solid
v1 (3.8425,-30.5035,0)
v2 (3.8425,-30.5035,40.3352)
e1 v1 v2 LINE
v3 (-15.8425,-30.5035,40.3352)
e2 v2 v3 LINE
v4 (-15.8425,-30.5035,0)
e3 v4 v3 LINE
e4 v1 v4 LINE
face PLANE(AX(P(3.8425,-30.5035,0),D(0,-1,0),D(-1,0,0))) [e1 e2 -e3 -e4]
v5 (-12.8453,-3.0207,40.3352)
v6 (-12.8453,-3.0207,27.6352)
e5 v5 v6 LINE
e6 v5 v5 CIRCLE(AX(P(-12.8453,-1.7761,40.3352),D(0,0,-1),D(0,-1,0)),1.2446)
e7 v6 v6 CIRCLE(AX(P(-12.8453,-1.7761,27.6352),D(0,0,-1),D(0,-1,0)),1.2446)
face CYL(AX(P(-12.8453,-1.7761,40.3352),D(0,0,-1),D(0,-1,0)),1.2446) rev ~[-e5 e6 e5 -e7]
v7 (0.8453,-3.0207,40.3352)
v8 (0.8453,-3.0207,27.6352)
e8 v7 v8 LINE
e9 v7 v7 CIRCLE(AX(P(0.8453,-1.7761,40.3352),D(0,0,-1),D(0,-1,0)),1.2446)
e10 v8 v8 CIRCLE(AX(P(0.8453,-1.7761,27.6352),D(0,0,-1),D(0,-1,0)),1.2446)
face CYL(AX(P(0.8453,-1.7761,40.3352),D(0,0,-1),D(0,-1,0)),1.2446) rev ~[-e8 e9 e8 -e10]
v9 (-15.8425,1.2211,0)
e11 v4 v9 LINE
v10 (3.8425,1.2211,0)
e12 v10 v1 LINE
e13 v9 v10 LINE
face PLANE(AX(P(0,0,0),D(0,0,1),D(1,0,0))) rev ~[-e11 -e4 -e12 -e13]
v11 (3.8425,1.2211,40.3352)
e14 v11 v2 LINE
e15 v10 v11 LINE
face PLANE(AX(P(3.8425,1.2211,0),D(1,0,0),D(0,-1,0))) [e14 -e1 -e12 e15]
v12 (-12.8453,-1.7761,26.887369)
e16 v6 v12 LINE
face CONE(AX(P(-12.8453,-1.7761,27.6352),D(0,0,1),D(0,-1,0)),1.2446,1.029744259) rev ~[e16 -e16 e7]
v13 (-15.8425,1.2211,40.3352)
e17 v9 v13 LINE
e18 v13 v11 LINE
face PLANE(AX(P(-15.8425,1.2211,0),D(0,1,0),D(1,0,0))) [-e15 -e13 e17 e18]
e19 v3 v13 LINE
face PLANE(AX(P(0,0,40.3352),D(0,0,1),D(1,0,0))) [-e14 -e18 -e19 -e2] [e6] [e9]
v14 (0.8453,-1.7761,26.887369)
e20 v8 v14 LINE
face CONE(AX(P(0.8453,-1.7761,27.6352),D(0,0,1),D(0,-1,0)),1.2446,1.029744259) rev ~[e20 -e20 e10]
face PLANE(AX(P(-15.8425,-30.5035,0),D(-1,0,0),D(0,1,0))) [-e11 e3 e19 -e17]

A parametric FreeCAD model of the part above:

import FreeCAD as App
import Part
import Sketcher
from FreeCAD import Vector
Q = App.Units.Quantity

doc = App.newDocument("Part")
body = doc.addObject("PartDesign::Body", "Body")

sketch1 = body.newObject("Sketcher::SketchObject", "Sketch")
sketch1.AttachmentSupport = (doc.getObject("XY_Plane"), [""])
sketch1.MapMode = "FlatFace"
sketch1.addGeometry(Part.LineSegment(Vector(4, 1, 0), Vector(-16, 1, 0)), False)
sketch1.addGeometry(Part.LineSegment(Vector(-16, 1, 0), Vector(-16, -31, 0)), False)
sketch1.addGeometry(Part.LineSegment(Vector(-16, -31, 0), Vector(4, -31, 0)), False)
sketch1.addGeometry(Part.LineSegment(Vector(4, -31, 0), Vector(4, 1, 0)), False)
sketch1.addConstraint(Sketcher.Constraint("Coincident", 0, 2, 1, 1))
sketch1.addConstraint(Sketcher.Constraint("Coincident", 1, 2, 2, 1))
sketch1.addConstraint(Sketcher.Constraint("Coincident", 2, 2, 3, 1))
sketch1.addConstraint(Sketcher.Constraint("Coincident", 3, 2, 0, 1))
sketch1.addConstraint(Sketcher.Constraint("Horizontal", 0))
sketch1.addConstraint(Sketcher.Constraint("Vertical", 1))
sketch1.addConstraint(Sketcher.Constraint("Horizontal", 2))
sketch1.addConstraint(Sketcher.Constraint("Vertical", 3))
sketch1.addConstraint(Sketcher.Constraint("DistanceX", 0, 2, 0, 1, Q("0.775 in")))
sketch1.addConstraint(Sketcher.Constraint("DistanceY", 1, 2, 1, 1, Q("1.249 in")))
sketch1.addConstraint(Sketcher.Constraint("DistanceX", 0, 2, -1, 1, Q("15.8425 mm")))
sketch1.addConstraint(Sketcher.Constraint("DistanceY", -1, 1, 0, 2, Q("1.221 mm")))
pad1 = body.newObject("PartDesign::Pad", "Pad")
pad1.Profile = sketch1
pad1.Length = Q("1.588 in")

sketch2 = body.newObject("Sketcher::SketchObject", "Sketch001")
sketch2.AttachmentSupport = (doc.getObject("XY_Plane"), [""])
sketch2.MapMode = "FlatFace"
sketch2.AttachmentOffset = App.Placement(Vector(0, 0, 1.588 * 25.4), App.Rotation())
sketch2.addGeometry(Part.Circle(Vector(-12.8, -1.8, 0), Vector(0, 0, 1), 1.2), False)
sketch2.addGeometry(Part.Circle(Vector(0.8, -1.8, 0), Vector(0, 0, 1), 1.2), False)
sketch2.addConstraint(Sketcher.Constraint("Equal", 0, 1))
sketch2.addConstraint(Sketcher.Constraint("Horizontal", 0, 3, 1, 3))
sketch2.addConstraint(Sketcher.Constraint("Diameter", 0, Q("0.098 in")))
sketch2.addConstraint(Sketcher.Constraint("DistanceX", 0, 3, 1, 3, Q("0.539 in")))
sketch2.addConstraint(Sketcher.Constraint("DistanceX", 0, 3, -1, 1, Q("12.8453 mm")))
sketch2.addConstraint(Sketcher.Constraint("DistanceY", 0, 3, -1, 1, Q("1.776 mm")))
doc.recompute()
hole = body.newObject("PartDesign::Hole", "Hole")
hole.Profile = sketch2
hole.ThreadType = "None"
hole.Diameter = Q("0.098 in")
hole.DepthType = "Dimension"
hole.Depth = Q("0.5 in")
hole.DrillPoint = "Angled"
hole.DrillPointAngle = 118

doc.recompute()
